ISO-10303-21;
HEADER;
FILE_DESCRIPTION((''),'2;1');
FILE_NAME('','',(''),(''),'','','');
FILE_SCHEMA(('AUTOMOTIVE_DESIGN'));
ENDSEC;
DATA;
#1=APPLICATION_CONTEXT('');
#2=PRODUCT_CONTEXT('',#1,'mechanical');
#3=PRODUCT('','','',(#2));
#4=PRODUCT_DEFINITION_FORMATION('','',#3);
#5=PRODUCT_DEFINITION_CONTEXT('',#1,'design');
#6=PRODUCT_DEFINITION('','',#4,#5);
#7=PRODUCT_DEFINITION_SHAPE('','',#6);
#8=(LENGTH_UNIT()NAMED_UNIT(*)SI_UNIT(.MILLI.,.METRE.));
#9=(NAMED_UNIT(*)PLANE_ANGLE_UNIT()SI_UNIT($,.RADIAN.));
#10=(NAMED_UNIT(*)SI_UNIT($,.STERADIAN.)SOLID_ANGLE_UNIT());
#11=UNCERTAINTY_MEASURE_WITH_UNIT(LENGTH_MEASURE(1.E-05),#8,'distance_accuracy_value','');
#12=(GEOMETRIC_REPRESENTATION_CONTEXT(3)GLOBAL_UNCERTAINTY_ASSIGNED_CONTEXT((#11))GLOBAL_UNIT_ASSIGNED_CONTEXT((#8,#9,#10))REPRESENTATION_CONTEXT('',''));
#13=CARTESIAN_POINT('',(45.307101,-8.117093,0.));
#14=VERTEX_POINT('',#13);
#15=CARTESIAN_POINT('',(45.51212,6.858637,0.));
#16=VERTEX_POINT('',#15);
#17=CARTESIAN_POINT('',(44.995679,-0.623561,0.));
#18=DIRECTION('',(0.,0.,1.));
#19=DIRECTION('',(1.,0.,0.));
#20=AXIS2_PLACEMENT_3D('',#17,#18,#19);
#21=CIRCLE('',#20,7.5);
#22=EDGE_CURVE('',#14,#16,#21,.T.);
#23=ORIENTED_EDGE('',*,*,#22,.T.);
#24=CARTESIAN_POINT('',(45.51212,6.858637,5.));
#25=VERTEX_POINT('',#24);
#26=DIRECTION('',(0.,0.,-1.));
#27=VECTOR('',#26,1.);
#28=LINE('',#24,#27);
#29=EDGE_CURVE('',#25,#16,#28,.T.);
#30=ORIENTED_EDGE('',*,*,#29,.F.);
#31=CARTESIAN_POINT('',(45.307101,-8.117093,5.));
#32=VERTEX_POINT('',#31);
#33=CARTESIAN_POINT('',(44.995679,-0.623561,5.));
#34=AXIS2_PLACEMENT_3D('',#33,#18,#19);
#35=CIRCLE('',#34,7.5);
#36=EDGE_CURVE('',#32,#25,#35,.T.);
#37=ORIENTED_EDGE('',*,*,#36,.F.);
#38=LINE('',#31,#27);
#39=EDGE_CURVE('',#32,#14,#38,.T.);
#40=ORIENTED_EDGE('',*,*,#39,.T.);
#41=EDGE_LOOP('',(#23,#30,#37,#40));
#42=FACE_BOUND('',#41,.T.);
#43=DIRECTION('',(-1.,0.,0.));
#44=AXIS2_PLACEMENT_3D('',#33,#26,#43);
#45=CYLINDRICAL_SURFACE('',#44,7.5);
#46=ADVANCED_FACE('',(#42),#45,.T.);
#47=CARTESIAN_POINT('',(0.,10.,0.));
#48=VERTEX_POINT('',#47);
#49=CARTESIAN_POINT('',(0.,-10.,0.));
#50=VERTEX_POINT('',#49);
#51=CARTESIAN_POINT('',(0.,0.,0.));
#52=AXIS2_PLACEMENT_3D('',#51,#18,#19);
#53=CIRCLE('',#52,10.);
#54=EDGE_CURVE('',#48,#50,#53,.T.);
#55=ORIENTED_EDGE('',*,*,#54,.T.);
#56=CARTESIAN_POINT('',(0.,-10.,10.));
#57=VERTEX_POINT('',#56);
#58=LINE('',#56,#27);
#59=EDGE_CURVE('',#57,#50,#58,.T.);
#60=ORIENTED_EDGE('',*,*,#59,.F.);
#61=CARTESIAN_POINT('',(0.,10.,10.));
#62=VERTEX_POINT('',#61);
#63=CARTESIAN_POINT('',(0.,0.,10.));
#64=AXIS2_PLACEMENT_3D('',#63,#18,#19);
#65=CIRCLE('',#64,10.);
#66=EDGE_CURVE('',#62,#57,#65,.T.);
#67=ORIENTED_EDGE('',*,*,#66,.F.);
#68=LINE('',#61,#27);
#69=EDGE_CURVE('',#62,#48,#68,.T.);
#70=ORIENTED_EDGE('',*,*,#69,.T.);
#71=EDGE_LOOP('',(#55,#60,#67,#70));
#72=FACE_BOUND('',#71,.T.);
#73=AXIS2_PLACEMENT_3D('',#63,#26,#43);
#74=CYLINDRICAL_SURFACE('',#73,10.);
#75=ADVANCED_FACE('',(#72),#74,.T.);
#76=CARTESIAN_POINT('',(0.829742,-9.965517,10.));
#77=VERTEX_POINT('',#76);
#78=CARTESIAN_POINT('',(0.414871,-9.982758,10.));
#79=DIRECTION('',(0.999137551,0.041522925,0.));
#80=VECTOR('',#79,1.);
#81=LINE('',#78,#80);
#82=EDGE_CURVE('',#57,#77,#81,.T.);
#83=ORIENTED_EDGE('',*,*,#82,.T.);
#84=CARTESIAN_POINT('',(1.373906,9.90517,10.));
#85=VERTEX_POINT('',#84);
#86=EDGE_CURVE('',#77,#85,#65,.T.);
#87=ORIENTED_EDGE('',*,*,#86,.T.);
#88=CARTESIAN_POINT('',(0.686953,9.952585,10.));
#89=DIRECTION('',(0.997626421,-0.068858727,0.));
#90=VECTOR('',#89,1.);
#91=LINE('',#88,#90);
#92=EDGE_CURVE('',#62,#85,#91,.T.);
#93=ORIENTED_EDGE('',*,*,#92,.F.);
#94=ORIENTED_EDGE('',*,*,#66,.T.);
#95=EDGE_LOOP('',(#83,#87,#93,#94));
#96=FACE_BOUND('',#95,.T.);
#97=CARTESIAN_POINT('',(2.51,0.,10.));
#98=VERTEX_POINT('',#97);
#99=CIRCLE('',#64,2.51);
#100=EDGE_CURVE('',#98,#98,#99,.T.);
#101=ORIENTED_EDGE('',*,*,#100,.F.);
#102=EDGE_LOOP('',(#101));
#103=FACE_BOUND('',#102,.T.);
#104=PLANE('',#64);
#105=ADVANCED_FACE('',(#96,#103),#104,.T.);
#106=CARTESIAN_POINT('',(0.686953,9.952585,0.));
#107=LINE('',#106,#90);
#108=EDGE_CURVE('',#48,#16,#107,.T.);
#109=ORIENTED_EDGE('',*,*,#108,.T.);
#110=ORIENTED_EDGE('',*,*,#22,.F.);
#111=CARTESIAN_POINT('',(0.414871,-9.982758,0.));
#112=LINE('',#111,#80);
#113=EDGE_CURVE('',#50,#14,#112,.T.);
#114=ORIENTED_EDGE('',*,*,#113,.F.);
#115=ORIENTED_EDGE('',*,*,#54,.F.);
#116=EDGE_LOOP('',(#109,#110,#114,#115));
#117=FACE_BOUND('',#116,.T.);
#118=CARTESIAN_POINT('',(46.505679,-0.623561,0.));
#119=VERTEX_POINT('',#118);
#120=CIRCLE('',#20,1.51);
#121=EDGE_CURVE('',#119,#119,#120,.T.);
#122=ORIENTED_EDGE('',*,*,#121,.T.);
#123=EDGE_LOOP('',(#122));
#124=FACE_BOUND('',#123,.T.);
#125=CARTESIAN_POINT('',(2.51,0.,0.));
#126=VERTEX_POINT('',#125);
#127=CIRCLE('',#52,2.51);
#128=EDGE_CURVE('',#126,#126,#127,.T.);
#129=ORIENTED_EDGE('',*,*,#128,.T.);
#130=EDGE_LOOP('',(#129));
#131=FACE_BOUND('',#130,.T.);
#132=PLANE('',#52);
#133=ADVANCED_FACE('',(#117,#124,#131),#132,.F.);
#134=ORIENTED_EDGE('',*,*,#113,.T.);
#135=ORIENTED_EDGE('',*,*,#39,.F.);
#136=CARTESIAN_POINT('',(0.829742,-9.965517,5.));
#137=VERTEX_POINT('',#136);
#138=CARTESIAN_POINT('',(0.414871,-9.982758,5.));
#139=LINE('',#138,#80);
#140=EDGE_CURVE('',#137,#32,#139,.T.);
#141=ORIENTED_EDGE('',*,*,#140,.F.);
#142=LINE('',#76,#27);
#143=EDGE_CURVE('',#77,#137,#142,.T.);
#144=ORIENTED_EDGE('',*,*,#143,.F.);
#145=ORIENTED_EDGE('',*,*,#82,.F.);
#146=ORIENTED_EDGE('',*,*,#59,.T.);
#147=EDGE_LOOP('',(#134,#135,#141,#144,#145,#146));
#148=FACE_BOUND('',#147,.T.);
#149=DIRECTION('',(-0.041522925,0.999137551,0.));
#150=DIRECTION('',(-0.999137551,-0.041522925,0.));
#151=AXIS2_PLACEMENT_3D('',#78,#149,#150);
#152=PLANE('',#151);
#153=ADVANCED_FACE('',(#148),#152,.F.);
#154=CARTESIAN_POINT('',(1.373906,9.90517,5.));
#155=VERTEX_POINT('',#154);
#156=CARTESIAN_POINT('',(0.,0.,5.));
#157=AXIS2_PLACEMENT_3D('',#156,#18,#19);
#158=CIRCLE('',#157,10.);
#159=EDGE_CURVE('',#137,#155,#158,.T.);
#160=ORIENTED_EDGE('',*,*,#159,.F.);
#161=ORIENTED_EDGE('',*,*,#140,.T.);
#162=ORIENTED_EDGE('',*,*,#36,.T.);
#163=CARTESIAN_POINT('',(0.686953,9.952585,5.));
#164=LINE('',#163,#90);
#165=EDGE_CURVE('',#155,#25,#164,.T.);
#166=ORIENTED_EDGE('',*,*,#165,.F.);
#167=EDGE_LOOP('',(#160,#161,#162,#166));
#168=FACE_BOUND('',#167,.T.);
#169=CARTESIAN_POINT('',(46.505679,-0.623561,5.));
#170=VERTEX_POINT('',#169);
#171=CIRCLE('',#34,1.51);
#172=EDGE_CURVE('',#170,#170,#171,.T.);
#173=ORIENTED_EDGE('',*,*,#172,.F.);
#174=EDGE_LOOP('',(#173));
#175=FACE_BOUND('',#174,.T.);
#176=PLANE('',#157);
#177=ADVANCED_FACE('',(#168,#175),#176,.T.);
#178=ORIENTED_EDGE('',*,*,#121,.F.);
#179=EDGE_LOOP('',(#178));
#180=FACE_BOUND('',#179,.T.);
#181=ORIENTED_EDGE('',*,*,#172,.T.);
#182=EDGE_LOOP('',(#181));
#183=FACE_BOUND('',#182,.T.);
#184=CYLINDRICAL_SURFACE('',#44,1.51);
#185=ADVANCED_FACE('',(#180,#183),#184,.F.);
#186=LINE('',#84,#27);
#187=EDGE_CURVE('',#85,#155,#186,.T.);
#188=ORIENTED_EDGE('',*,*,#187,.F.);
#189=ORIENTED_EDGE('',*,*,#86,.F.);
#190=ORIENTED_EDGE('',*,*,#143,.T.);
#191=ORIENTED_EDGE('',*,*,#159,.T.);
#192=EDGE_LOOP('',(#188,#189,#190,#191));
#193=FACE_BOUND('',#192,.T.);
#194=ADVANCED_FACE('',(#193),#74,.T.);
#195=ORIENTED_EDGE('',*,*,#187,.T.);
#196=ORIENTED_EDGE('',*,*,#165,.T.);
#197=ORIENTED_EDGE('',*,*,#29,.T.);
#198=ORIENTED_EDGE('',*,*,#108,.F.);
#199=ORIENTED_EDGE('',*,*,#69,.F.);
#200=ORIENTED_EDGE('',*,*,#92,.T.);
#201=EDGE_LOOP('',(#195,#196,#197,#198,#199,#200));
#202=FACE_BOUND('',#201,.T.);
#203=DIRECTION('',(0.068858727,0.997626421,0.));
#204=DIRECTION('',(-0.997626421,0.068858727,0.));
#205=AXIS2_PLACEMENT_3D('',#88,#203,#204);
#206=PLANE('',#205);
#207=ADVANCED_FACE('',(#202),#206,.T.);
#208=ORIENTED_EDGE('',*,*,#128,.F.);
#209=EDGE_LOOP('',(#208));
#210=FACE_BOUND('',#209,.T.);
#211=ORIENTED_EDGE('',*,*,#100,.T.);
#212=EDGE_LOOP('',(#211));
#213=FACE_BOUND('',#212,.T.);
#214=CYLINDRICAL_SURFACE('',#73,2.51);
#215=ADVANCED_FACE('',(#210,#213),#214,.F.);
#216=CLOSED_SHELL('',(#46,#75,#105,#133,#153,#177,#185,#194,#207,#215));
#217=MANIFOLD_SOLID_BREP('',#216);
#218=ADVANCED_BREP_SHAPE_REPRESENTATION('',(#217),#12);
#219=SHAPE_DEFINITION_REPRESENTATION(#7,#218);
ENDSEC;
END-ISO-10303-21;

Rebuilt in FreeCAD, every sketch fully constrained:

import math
import FreeCAD as App
import Part
import Sketcher

doc = App.newDocument("Part")
body = doc.addObject("PartDesign::Body", "Body")

# Sketch on XY plane
sketch1 = body.newObject("Sketcher::SketchObject", "Sketch")
sketch1.AttachmentSupport = (doc.getObject("XY_Plane"), [""])
sketch1.MapMode = "FlatFace"
sketch1.addGeometry([
    Part.LineSegment(App.Vector(1.373906, 9.90517, 0), App.Vector(0, 10, 0)),  # 0
    Part.ArcOfCircle(Part.Circle(App.Vector(0, 0, 0), App.Vector(0, 0, 1), 10), math.radians(90), math.radians(270)),  # 1
    Part.LineSegment(App.Vector(0, -10, 0), App.Vector(0.829742, -9.965517, 0)),  # 2
    Part.ArcOfCircle(Part.Circle(App.Vector(0, 0, 0), App.Vector(0, 0, 1), 10), math.radians(-85.240455), math.radians(0)),  # 3
    Part.ArcOfCircle(Part.Circle(App.Vector(0, 0, 0), App.Vector(0, 0, 1), 10), math.radians(0), math.radians(82.103122)),  # 4
    Part.Circle(App.Vector(0, 0, 0), App.Vector(0, 0, 1), 2.51),  # 5
], False)
sketch1.addConstraint([
    Sketcher.Constraint("Coincident", 0, 2, 1, 1),
    Sketcher.Constraint("Coincident", 1, 2, 2, 1),
    Sketcher.Constraint("Coincident", 2, 2, 3, 1),
    Sketcher.Constraint("Tangent", 3, 2, 4, 1),
    Sketcher.Constraint("Coincident", 4, 2, 0, 1),
    Sketcher.Constraint("Coincident", 1, 3, -1, 1),
    Sketcher.Constraint("Coincident", 3, 3, -1, 1),
    Sketcher.Constraint("Coincident", 5, 3, -1, 1),
    Sketcher.Constraint("Equal", 1, 3),
    Sketcher.Constraint("Equal", 3, 4),
    Sketcher.Constraint("PointOnObject", 0, 2, -2),
    Sketcher.Constraint("PointOnObject", 1, 2, -2),
    Sketcher.Constraint("PointOnObject", 3, 2, -1),
    Sketcher.Constraint("Radius", 1, 10.0),
    Sketcher.Constraint("Diameter", 5, 5.02),
    Sketcher.Constraint("Distance", 2, 0.830459),
    Sketcher.Constraint("DistanceY", -1, 1, 4, 2, 9.90517),
])
pad1 = body.newObject("PartDesign::Pad", "Pad")
pad1.Profile = sketch1
pad1.Length = 10

# Sketch on XY plane
sketch2 = body.newObject("Sketcher::SketchObject", "Sketch001")
sketch2.AttachmentSupport = (doc.getObject("XY_Plane"), [""])
sketch2.MapMode = "FlatFace"
sketch2.addGeometry([
    Part.LineSegment(App.Vector(45.51212, 6.858637, 0), App.Vector(1.373906, 9.90517, 0)),  # 0
    Part.ArcOfCircle(Part.Circle(App.Vector(0, 0, 0), App.Vector(0, 0, 1), 10), math.radians(0), math.radians(82.103122)),  # 1
    Part.ArcOfCircle(Part.Circle(App.Vector(0, 0, 0), App.Vector(0, 0, 1), 10), math.radians(-85.240455), math.radians(0)),  # 2
    Part.LineSegment(App.Vector(0.829742, -9.965517, 0), App.Vector(45.307101, -8.117093, 0)),  # 3
    Part.ArcOfCircle(Part.Circle(App.Vector(44.995679, -0.623561, 0), App.Vector(0, 0, 1), 7.5), math.radians(-87.620227), math.radians(86.051561)),  # 4
    Part.Circle(App.Vector(44.995679, -0.623561, 0), App.Vector(0, 0, 1), 1.51),  # 5
], False)
sketch2.addConstraint([
    Sketcher.Constraint("Coincident", 0, 2, 1, 2),
    Sketcher.Constraint("Tangent", 1, 1, 2, 2),
    Sketcher.Constraint("Coincident", 2, 1, 3, 1),
    Sketcher.Constraint("Tangent", 3, 2, 4, 1),
    Sketcher.Constraint("Tangent", 4, 2, 0, 1),
    Sketcher.Constraint("Coincident", 1, 3, -1, 1),
    Sketcher.Constraint("Coincident", 5, 3, 4, 3),
    Sketcher.Constraint("Equal", 1, 2),
    Sketcher.Constraint("PointOnObject", 1, 1, -1),
    Sketcher.Constraint("Radius", 1, 10.0),
    Sketcher.Constraint("Radius", 4, 7.5),
    Sketcher.Constraint("Diameter", 5, 3.02),
    Sketcher.Constraint("DistanceX", -1, 1, 3, 2, 45.307101),
    Sketcher.Constraint("DistanceY", 4, 3, 4, 2, 7.482198),
    Sketcher.Constraint("Distance", 0, 44.243229),
    Sketcher.Constraint("Distance", 3, 44.515752),
])
pad2 = body.newObject("PartDesign::Pad", "Pad001")
pad2.Profile = sketch2
pad2.Length = 5

doc.recompute()
